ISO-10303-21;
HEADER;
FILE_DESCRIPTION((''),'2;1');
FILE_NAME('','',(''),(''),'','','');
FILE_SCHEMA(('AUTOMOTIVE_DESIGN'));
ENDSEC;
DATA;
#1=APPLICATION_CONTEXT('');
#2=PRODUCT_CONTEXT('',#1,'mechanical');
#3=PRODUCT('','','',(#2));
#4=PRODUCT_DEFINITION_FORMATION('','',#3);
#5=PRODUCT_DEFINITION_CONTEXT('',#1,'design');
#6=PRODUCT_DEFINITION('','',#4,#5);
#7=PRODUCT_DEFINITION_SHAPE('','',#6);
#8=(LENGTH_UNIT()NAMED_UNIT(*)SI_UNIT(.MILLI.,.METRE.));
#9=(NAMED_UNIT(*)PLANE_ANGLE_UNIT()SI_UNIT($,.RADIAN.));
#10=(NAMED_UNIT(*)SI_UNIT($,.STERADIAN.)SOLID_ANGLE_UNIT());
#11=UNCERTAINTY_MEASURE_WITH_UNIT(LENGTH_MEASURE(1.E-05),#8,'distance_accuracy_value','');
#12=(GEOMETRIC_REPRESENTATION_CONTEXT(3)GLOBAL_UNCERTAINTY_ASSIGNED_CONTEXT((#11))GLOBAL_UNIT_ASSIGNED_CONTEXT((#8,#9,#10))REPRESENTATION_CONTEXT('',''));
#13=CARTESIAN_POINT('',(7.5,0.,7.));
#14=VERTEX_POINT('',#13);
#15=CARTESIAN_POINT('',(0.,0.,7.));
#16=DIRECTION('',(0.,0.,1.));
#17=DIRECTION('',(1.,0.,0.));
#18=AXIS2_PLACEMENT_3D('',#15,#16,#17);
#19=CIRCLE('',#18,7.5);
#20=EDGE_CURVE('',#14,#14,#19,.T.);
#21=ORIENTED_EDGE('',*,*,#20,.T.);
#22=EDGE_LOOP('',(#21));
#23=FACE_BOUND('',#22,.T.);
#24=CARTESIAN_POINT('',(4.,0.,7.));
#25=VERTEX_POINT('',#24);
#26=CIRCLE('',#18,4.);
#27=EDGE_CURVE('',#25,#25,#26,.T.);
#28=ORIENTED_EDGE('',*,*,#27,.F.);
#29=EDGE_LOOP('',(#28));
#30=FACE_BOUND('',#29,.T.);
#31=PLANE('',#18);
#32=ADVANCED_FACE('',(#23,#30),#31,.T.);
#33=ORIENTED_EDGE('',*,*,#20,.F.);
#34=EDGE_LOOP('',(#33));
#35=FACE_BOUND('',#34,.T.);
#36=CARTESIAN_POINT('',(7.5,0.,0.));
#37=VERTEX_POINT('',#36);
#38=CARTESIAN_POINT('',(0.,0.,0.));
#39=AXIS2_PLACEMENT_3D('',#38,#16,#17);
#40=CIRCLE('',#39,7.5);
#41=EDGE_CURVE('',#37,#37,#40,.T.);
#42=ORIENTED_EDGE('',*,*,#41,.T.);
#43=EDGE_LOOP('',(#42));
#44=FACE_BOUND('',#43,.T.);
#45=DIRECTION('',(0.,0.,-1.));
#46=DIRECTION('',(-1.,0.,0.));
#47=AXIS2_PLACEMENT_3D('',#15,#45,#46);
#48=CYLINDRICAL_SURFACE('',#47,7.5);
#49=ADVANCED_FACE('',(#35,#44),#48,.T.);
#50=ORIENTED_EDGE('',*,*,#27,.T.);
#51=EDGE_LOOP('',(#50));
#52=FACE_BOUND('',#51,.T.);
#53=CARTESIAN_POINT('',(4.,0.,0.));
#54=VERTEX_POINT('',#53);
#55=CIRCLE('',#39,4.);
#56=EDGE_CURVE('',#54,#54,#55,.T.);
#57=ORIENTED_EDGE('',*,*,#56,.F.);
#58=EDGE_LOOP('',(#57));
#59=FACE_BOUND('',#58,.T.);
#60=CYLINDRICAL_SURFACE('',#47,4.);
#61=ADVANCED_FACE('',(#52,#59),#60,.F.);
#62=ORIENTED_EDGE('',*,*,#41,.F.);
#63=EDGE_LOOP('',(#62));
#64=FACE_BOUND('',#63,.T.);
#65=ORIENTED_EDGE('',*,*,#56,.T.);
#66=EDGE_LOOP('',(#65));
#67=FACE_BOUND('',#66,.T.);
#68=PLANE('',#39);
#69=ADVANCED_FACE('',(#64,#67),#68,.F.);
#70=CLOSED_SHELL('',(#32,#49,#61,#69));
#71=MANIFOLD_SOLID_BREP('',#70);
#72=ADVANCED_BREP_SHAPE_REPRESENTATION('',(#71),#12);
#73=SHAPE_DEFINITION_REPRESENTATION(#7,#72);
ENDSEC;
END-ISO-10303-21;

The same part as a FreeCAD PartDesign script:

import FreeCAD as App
import Part
import Sketcher

V = App.Vector
Q = App.Units.Quantity

doc = App.newDocument("Part")
params = doc.addObject("Spreadsheet::Sheet", "Params")
for row, (alias, value) in enumerate([
    ("sketch1_diameter", "15 mm"),
    ("sketch1_diameter2", "8 mm"),
    ("pad1_length", "7 mm"),
], start=1):
    params.set(f"A{row}", alias)
    params.set(f"B{row}", "=" + value)
    params.setAlias(f"B{row}", alias)

body = doc.addObject("PartDesign::Body", "Body")

# Sketch on XY plane
sketch1 = body.newObject("Sketcher::SketchObject", "Sketch")
sketch1.AttachmentSupport = (doc.getObject("XY_Plane"), [""])
sketch1.MapMode = "FlatFace"
sketch1.addGeometry([
    Part.Circle(V(0, 0, 0), V(0, 0, 1), 7.5),
    Part.Circle(V(0, 0, 0), V(0, 0, 1), 4),
], False)
sketch1.addConstraint([
    Sketcher.Constraint("Coincident", 0, 3, -1, 1),
    Sketcher.Constraint("Coincident", 1, 3, -1, 1),
    Sketcher.Constraint("Diameter", 0, Q("15 mm")),
    Sketcher.Constraint("Diameter", 1, Q("8 mm")),
])
sketch1.setExpression("Constraints[2]", "Params.sketch1_diameter")
sketch1.setExpression("Constraints[3]", "Params.sketch1_diameter2")
pad1 = body.newObject("PartDesign::Pad", "Pad")
pad1.Profile = sketch1
pad1.setExpression("Length", "Params.pad1_length")

doc.recompute()
